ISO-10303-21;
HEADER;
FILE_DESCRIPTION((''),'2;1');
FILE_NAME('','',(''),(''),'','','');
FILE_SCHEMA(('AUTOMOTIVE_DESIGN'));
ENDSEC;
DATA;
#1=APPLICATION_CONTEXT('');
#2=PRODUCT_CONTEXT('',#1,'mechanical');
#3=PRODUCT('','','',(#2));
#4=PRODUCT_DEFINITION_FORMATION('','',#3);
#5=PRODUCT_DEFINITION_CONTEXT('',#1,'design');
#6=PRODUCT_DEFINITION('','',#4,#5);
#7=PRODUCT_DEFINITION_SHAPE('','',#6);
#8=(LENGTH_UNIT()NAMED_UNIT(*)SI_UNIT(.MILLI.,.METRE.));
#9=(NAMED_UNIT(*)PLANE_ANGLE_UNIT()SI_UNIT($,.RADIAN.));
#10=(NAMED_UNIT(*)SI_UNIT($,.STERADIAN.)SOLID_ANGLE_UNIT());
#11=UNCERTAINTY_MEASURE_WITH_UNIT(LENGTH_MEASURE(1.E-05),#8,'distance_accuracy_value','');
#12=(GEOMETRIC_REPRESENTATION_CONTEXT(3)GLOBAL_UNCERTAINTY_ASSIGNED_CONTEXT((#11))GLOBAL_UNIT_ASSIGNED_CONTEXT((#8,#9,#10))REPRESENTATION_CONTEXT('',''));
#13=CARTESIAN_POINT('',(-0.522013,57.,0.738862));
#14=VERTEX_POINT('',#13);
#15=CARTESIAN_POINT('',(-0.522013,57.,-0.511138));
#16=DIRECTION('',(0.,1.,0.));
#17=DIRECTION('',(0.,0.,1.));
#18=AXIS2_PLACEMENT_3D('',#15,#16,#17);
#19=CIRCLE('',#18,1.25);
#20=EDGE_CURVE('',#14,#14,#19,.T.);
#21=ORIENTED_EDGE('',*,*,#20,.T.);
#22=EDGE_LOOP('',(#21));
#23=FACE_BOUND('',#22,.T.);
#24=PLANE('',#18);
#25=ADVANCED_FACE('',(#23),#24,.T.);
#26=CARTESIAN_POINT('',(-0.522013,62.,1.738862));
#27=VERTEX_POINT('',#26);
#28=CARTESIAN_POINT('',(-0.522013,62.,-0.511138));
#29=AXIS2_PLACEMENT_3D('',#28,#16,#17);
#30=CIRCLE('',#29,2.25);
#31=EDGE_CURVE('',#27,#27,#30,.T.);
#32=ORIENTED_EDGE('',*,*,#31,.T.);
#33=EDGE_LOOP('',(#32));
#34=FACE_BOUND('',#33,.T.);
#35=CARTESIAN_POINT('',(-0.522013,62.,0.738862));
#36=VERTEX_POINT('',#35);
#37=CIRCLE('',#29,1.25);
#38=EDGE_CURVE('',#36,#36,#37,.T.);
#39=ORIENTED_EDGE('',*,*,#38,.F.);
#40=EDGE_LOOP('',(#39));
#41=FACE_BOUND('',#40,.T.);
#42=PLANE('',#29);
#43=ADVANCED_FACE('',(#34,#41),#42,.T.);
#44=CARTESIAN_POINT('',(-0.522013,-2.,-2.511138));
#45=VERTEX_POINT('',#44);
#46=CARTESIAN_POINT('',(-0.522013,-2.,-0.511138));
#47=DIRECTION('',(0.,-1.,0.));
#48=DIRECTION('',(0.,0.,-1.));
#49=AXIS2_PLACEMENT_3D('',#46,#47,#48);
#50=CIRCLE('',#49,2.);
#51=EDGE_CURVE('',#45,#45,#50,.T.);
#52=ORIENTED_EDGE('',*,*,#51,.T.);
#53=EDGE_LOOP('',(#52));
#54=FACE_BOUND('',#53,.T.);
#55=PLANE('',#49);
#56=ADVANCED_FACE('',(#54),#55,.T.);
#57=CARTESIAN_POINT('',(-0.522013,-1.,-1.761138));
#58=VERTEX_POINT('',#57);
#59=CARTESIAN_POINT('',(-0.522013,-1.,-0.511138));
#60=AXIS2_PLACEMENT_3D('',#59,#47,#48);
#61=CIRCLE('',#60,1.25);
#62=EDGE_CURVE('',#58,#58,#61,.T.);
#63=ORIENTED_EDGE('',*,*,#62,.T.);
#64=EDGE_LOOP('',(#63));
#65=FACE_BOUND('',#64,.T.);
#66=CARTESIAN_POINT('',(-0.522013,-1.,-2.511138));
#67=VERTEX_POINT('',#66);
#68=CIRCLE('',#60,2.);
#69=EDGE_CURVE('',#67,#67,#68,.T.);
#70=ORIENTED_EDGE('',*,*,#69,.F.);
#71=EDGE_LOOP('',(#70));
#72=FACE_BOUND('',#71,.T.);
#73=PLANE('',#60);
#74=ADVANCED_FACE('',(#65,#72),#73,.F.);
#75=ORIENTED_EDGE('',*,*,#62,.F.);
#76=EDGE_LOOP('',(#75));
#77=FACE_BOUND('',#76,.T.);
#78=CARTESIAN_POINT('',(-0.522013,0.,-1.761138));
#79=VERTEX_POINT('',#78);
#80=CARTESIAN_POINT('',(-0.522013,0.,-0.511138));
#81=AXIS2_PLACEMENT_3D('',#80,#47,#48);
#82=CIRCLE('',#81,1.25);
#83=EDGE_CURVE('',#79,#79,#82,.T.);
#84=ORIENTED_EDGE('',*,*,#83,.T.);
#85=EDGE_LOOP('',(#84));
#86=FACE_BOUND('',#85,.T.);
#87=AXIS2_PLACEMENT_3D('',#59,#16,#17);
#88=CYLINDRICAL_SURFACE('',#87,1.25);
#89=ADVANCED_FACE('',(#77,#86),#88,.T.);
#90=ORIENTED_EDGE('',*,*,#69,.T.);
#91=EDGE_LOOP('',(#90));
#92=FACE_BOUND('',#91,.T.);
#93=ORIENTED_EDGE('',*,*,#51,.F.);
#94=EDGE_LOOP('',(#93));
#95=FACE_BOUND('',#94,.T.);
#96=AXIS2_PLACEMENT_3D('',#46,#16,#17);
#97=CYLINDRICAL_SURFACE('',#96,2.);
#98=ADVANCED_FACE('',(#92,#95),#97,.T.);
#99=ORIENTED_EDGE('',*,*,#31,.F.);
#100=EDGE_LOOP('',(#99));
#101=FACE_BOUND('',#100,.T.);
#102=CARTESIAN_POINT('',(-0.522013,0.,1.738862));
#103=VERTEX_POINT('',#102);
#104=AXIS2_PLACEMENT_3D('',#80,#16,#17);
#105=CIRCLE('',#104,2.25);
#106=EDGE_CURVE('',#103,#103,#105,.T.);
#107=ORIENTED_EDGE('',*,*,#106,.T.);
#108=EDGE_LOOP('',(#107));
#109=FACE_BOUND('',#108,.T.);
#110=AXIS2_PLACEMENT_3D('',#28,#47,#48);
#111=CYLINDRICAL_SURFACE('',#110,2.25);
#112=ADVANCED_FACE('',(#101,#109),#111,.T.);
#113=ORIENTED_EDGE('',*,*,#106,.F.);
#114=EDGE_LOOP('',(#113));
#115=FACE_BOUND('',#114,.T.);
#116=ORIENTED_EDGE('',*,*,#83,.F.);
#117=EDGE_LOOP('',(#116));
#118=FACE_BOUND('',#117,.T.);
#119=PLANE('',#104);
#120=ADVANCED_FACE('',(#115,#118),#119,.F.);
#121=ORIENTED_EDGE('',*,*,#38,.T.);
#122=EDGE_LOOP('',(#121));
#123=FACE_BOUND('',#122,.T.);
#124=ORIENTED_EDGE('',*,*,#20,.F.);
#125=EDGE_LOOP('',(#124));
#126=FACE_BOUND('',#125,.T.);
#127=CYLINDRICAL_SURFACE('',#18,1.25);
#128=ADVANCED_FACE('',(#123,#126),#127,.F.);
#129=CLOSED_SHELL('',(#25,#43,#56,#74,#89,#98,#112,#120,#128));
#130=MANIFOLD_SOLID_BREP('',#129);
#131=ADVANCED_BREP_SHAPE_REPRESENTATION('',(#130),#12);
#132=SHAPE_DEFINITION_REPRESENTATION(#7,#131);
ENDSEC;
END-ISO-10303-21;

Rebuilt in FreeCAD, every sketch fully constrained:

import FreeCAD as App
import Part
import Sketcher

doc = App.newDocument("Part")
body = doc.addObject("PartDesign::Body", "Body")

sketch1 = doc.addObject("Sketcher::SketchObject", "Sketch")
body.addObject(sketch1)
sketch1.AttachmentSupport = (doc.XZ_Plane, [""])
sketch1.MapMode = "FlatFace"
sketch1.addGeometry(Part.Circle(App.Vector(-0.522013, -0.511138, 0), App.Vector(0, 0, 1), 2.25), False)
sketch1.addConstraint(Sketcher.Constraint("Diameter", 0, 4.5))
sketch1.addConstraint(Sketcher.Constraint("DistanceY", 0, 3, -1, 1, 0.511138))
sketch1.addConstraint(Sketcher.Constraint("DistanceX", 0, 3, -1, 1, 0.522013))
pad1 = doc.addObject("PartDesign::Pad", "Pad")
body.addObject(pad1)
pad1.Profile = sketch1
pad1.Length = 62
pad1.Reversed = True

sketch2 = doc.addObject("Sketcher::SketchObject", "Sketch001")
body.addObject(sketch2)
sketch2.AttachmentSupport = (doc.XZ_Plane, [""])
sketch2.MapMode = "FlatFace"
sketch2.addGeometry(Part.Circle(App.Vector(-0.522013, -0.511138, 0), App.Vector(0, 0, 1), 1), False)
sketch2.addConstraint(Sketcher.Constraint("Diameter", 0, 2.0))
sketch2.addConstraint(Sketcher.Constraint("DistanceY", 0, 3, -1, 1, 0.511138))
sketch2.addConstraint(Sketcher.Constraint("DistanceX", 0, 3, -1, 1, 0.522013))
pad2 = doc.addObject("PartDesign::Pad", "Pad001")
body.addObject(pad2)
pad2.Profile = sketch2
pad2.Length = 1
pad2.Reversed = True

sketch3 = doc.addObject("Sketcher::SketchObject", "Sketch002")
body.addObject(sketch3)
sketch3.AttachmentSupport = (doc.XZ_Plane, [""])
sketch3.MapMode = "FlatFace"
sketch3.addGeometry(Part.Circle(App.Vector(-0.522013, -0.511138, 0), App.Vector(0, 0, 1), 1.25), False)
sketch3.addConstraint(Sketcher.Constraint("Diameter", 0, 2.5))
sketch3.addConstraint(Sketcher.Constraint("DistanceY", 0, 3, -1, 1, 0.511138))
sketch3.addConstraint(Sketcher.Constraint("DistanceX", 0, 3, -1, 1, 0.522013))
pad3 = doc.addObject("PartDesign::Pad", "Pad002")
body.addObject(pad3)
pad3.Profile = sketch3
pad3.Length = 1

sketch4 = doc.addObject("Sketcher::SketchObject", "Sketch003")
body.addObject(sketch4)
sketch4.AttachmentSupport = (doc.XZ_Plane, [""])
sketch4.MapMode = "FlatFace"
sketch4.AttachmentOffset = App.Placement(App.Vector(0, 0, 1), App.Rotation())
sketch4.addGeometry(Part.Circle(App.Vector(-0.522013, -0.511138, 0), App.Vector(0, 0, 1), 2), False)
sketch4.addConstraint(Sketcher.Constraint("Diameter", 0, 4.0))
sketch4.addConstraint(Sketcher.Constraint("DistanceY", 0, 3, -1, 1, 0.511138))
sketch4.addConstraint(Sketcher.Constraint("DistanceX", 0, 3, -1, 1, 0.522013))
pad4 = doc.addObject("PartDesign::Pad", "Pad003")
body.addObject(pad4)
pad4.Profile = sketch4
pad4.Length = 1

sketch5 = doc.addObject("Sketcher::SketchObject", "Sketch004")
body.addObject(sketch5)
sketch5.AttachmentSupport = (doc.XZ_Plane, [""])
sketch5.MapMode = "FlatFace"
sketch5.AttachmentOffset = App.Placement(App.Vector(0, 0, -62), App.Rotation())
sketch5.addGeometry(Part.Circle(App.Vector(-0.522013, -0.511138, 0), App.Vector(0, 0, 1), 1.25), False)
sketch5.addConstraint(Sketcher.Constraint("Diameter", 0, 2.5))
sketch5.addConstraint(Sketcher.Constraint("DistanceY", 0, 3, -1, 1, 0.511138))
sketch5.addConstraint(Sketcher.Constraint("DistanceX", 0, 3, -1, 1, 0.522013))
pocket1 = doc.addObject("PartDesign::Pocket", "Pocket")
body.addObject(pocket1)
pocket1.Profile = sketch5
pocket1.Length = 5
pocket1.Reversed = True

doc.recompute()
